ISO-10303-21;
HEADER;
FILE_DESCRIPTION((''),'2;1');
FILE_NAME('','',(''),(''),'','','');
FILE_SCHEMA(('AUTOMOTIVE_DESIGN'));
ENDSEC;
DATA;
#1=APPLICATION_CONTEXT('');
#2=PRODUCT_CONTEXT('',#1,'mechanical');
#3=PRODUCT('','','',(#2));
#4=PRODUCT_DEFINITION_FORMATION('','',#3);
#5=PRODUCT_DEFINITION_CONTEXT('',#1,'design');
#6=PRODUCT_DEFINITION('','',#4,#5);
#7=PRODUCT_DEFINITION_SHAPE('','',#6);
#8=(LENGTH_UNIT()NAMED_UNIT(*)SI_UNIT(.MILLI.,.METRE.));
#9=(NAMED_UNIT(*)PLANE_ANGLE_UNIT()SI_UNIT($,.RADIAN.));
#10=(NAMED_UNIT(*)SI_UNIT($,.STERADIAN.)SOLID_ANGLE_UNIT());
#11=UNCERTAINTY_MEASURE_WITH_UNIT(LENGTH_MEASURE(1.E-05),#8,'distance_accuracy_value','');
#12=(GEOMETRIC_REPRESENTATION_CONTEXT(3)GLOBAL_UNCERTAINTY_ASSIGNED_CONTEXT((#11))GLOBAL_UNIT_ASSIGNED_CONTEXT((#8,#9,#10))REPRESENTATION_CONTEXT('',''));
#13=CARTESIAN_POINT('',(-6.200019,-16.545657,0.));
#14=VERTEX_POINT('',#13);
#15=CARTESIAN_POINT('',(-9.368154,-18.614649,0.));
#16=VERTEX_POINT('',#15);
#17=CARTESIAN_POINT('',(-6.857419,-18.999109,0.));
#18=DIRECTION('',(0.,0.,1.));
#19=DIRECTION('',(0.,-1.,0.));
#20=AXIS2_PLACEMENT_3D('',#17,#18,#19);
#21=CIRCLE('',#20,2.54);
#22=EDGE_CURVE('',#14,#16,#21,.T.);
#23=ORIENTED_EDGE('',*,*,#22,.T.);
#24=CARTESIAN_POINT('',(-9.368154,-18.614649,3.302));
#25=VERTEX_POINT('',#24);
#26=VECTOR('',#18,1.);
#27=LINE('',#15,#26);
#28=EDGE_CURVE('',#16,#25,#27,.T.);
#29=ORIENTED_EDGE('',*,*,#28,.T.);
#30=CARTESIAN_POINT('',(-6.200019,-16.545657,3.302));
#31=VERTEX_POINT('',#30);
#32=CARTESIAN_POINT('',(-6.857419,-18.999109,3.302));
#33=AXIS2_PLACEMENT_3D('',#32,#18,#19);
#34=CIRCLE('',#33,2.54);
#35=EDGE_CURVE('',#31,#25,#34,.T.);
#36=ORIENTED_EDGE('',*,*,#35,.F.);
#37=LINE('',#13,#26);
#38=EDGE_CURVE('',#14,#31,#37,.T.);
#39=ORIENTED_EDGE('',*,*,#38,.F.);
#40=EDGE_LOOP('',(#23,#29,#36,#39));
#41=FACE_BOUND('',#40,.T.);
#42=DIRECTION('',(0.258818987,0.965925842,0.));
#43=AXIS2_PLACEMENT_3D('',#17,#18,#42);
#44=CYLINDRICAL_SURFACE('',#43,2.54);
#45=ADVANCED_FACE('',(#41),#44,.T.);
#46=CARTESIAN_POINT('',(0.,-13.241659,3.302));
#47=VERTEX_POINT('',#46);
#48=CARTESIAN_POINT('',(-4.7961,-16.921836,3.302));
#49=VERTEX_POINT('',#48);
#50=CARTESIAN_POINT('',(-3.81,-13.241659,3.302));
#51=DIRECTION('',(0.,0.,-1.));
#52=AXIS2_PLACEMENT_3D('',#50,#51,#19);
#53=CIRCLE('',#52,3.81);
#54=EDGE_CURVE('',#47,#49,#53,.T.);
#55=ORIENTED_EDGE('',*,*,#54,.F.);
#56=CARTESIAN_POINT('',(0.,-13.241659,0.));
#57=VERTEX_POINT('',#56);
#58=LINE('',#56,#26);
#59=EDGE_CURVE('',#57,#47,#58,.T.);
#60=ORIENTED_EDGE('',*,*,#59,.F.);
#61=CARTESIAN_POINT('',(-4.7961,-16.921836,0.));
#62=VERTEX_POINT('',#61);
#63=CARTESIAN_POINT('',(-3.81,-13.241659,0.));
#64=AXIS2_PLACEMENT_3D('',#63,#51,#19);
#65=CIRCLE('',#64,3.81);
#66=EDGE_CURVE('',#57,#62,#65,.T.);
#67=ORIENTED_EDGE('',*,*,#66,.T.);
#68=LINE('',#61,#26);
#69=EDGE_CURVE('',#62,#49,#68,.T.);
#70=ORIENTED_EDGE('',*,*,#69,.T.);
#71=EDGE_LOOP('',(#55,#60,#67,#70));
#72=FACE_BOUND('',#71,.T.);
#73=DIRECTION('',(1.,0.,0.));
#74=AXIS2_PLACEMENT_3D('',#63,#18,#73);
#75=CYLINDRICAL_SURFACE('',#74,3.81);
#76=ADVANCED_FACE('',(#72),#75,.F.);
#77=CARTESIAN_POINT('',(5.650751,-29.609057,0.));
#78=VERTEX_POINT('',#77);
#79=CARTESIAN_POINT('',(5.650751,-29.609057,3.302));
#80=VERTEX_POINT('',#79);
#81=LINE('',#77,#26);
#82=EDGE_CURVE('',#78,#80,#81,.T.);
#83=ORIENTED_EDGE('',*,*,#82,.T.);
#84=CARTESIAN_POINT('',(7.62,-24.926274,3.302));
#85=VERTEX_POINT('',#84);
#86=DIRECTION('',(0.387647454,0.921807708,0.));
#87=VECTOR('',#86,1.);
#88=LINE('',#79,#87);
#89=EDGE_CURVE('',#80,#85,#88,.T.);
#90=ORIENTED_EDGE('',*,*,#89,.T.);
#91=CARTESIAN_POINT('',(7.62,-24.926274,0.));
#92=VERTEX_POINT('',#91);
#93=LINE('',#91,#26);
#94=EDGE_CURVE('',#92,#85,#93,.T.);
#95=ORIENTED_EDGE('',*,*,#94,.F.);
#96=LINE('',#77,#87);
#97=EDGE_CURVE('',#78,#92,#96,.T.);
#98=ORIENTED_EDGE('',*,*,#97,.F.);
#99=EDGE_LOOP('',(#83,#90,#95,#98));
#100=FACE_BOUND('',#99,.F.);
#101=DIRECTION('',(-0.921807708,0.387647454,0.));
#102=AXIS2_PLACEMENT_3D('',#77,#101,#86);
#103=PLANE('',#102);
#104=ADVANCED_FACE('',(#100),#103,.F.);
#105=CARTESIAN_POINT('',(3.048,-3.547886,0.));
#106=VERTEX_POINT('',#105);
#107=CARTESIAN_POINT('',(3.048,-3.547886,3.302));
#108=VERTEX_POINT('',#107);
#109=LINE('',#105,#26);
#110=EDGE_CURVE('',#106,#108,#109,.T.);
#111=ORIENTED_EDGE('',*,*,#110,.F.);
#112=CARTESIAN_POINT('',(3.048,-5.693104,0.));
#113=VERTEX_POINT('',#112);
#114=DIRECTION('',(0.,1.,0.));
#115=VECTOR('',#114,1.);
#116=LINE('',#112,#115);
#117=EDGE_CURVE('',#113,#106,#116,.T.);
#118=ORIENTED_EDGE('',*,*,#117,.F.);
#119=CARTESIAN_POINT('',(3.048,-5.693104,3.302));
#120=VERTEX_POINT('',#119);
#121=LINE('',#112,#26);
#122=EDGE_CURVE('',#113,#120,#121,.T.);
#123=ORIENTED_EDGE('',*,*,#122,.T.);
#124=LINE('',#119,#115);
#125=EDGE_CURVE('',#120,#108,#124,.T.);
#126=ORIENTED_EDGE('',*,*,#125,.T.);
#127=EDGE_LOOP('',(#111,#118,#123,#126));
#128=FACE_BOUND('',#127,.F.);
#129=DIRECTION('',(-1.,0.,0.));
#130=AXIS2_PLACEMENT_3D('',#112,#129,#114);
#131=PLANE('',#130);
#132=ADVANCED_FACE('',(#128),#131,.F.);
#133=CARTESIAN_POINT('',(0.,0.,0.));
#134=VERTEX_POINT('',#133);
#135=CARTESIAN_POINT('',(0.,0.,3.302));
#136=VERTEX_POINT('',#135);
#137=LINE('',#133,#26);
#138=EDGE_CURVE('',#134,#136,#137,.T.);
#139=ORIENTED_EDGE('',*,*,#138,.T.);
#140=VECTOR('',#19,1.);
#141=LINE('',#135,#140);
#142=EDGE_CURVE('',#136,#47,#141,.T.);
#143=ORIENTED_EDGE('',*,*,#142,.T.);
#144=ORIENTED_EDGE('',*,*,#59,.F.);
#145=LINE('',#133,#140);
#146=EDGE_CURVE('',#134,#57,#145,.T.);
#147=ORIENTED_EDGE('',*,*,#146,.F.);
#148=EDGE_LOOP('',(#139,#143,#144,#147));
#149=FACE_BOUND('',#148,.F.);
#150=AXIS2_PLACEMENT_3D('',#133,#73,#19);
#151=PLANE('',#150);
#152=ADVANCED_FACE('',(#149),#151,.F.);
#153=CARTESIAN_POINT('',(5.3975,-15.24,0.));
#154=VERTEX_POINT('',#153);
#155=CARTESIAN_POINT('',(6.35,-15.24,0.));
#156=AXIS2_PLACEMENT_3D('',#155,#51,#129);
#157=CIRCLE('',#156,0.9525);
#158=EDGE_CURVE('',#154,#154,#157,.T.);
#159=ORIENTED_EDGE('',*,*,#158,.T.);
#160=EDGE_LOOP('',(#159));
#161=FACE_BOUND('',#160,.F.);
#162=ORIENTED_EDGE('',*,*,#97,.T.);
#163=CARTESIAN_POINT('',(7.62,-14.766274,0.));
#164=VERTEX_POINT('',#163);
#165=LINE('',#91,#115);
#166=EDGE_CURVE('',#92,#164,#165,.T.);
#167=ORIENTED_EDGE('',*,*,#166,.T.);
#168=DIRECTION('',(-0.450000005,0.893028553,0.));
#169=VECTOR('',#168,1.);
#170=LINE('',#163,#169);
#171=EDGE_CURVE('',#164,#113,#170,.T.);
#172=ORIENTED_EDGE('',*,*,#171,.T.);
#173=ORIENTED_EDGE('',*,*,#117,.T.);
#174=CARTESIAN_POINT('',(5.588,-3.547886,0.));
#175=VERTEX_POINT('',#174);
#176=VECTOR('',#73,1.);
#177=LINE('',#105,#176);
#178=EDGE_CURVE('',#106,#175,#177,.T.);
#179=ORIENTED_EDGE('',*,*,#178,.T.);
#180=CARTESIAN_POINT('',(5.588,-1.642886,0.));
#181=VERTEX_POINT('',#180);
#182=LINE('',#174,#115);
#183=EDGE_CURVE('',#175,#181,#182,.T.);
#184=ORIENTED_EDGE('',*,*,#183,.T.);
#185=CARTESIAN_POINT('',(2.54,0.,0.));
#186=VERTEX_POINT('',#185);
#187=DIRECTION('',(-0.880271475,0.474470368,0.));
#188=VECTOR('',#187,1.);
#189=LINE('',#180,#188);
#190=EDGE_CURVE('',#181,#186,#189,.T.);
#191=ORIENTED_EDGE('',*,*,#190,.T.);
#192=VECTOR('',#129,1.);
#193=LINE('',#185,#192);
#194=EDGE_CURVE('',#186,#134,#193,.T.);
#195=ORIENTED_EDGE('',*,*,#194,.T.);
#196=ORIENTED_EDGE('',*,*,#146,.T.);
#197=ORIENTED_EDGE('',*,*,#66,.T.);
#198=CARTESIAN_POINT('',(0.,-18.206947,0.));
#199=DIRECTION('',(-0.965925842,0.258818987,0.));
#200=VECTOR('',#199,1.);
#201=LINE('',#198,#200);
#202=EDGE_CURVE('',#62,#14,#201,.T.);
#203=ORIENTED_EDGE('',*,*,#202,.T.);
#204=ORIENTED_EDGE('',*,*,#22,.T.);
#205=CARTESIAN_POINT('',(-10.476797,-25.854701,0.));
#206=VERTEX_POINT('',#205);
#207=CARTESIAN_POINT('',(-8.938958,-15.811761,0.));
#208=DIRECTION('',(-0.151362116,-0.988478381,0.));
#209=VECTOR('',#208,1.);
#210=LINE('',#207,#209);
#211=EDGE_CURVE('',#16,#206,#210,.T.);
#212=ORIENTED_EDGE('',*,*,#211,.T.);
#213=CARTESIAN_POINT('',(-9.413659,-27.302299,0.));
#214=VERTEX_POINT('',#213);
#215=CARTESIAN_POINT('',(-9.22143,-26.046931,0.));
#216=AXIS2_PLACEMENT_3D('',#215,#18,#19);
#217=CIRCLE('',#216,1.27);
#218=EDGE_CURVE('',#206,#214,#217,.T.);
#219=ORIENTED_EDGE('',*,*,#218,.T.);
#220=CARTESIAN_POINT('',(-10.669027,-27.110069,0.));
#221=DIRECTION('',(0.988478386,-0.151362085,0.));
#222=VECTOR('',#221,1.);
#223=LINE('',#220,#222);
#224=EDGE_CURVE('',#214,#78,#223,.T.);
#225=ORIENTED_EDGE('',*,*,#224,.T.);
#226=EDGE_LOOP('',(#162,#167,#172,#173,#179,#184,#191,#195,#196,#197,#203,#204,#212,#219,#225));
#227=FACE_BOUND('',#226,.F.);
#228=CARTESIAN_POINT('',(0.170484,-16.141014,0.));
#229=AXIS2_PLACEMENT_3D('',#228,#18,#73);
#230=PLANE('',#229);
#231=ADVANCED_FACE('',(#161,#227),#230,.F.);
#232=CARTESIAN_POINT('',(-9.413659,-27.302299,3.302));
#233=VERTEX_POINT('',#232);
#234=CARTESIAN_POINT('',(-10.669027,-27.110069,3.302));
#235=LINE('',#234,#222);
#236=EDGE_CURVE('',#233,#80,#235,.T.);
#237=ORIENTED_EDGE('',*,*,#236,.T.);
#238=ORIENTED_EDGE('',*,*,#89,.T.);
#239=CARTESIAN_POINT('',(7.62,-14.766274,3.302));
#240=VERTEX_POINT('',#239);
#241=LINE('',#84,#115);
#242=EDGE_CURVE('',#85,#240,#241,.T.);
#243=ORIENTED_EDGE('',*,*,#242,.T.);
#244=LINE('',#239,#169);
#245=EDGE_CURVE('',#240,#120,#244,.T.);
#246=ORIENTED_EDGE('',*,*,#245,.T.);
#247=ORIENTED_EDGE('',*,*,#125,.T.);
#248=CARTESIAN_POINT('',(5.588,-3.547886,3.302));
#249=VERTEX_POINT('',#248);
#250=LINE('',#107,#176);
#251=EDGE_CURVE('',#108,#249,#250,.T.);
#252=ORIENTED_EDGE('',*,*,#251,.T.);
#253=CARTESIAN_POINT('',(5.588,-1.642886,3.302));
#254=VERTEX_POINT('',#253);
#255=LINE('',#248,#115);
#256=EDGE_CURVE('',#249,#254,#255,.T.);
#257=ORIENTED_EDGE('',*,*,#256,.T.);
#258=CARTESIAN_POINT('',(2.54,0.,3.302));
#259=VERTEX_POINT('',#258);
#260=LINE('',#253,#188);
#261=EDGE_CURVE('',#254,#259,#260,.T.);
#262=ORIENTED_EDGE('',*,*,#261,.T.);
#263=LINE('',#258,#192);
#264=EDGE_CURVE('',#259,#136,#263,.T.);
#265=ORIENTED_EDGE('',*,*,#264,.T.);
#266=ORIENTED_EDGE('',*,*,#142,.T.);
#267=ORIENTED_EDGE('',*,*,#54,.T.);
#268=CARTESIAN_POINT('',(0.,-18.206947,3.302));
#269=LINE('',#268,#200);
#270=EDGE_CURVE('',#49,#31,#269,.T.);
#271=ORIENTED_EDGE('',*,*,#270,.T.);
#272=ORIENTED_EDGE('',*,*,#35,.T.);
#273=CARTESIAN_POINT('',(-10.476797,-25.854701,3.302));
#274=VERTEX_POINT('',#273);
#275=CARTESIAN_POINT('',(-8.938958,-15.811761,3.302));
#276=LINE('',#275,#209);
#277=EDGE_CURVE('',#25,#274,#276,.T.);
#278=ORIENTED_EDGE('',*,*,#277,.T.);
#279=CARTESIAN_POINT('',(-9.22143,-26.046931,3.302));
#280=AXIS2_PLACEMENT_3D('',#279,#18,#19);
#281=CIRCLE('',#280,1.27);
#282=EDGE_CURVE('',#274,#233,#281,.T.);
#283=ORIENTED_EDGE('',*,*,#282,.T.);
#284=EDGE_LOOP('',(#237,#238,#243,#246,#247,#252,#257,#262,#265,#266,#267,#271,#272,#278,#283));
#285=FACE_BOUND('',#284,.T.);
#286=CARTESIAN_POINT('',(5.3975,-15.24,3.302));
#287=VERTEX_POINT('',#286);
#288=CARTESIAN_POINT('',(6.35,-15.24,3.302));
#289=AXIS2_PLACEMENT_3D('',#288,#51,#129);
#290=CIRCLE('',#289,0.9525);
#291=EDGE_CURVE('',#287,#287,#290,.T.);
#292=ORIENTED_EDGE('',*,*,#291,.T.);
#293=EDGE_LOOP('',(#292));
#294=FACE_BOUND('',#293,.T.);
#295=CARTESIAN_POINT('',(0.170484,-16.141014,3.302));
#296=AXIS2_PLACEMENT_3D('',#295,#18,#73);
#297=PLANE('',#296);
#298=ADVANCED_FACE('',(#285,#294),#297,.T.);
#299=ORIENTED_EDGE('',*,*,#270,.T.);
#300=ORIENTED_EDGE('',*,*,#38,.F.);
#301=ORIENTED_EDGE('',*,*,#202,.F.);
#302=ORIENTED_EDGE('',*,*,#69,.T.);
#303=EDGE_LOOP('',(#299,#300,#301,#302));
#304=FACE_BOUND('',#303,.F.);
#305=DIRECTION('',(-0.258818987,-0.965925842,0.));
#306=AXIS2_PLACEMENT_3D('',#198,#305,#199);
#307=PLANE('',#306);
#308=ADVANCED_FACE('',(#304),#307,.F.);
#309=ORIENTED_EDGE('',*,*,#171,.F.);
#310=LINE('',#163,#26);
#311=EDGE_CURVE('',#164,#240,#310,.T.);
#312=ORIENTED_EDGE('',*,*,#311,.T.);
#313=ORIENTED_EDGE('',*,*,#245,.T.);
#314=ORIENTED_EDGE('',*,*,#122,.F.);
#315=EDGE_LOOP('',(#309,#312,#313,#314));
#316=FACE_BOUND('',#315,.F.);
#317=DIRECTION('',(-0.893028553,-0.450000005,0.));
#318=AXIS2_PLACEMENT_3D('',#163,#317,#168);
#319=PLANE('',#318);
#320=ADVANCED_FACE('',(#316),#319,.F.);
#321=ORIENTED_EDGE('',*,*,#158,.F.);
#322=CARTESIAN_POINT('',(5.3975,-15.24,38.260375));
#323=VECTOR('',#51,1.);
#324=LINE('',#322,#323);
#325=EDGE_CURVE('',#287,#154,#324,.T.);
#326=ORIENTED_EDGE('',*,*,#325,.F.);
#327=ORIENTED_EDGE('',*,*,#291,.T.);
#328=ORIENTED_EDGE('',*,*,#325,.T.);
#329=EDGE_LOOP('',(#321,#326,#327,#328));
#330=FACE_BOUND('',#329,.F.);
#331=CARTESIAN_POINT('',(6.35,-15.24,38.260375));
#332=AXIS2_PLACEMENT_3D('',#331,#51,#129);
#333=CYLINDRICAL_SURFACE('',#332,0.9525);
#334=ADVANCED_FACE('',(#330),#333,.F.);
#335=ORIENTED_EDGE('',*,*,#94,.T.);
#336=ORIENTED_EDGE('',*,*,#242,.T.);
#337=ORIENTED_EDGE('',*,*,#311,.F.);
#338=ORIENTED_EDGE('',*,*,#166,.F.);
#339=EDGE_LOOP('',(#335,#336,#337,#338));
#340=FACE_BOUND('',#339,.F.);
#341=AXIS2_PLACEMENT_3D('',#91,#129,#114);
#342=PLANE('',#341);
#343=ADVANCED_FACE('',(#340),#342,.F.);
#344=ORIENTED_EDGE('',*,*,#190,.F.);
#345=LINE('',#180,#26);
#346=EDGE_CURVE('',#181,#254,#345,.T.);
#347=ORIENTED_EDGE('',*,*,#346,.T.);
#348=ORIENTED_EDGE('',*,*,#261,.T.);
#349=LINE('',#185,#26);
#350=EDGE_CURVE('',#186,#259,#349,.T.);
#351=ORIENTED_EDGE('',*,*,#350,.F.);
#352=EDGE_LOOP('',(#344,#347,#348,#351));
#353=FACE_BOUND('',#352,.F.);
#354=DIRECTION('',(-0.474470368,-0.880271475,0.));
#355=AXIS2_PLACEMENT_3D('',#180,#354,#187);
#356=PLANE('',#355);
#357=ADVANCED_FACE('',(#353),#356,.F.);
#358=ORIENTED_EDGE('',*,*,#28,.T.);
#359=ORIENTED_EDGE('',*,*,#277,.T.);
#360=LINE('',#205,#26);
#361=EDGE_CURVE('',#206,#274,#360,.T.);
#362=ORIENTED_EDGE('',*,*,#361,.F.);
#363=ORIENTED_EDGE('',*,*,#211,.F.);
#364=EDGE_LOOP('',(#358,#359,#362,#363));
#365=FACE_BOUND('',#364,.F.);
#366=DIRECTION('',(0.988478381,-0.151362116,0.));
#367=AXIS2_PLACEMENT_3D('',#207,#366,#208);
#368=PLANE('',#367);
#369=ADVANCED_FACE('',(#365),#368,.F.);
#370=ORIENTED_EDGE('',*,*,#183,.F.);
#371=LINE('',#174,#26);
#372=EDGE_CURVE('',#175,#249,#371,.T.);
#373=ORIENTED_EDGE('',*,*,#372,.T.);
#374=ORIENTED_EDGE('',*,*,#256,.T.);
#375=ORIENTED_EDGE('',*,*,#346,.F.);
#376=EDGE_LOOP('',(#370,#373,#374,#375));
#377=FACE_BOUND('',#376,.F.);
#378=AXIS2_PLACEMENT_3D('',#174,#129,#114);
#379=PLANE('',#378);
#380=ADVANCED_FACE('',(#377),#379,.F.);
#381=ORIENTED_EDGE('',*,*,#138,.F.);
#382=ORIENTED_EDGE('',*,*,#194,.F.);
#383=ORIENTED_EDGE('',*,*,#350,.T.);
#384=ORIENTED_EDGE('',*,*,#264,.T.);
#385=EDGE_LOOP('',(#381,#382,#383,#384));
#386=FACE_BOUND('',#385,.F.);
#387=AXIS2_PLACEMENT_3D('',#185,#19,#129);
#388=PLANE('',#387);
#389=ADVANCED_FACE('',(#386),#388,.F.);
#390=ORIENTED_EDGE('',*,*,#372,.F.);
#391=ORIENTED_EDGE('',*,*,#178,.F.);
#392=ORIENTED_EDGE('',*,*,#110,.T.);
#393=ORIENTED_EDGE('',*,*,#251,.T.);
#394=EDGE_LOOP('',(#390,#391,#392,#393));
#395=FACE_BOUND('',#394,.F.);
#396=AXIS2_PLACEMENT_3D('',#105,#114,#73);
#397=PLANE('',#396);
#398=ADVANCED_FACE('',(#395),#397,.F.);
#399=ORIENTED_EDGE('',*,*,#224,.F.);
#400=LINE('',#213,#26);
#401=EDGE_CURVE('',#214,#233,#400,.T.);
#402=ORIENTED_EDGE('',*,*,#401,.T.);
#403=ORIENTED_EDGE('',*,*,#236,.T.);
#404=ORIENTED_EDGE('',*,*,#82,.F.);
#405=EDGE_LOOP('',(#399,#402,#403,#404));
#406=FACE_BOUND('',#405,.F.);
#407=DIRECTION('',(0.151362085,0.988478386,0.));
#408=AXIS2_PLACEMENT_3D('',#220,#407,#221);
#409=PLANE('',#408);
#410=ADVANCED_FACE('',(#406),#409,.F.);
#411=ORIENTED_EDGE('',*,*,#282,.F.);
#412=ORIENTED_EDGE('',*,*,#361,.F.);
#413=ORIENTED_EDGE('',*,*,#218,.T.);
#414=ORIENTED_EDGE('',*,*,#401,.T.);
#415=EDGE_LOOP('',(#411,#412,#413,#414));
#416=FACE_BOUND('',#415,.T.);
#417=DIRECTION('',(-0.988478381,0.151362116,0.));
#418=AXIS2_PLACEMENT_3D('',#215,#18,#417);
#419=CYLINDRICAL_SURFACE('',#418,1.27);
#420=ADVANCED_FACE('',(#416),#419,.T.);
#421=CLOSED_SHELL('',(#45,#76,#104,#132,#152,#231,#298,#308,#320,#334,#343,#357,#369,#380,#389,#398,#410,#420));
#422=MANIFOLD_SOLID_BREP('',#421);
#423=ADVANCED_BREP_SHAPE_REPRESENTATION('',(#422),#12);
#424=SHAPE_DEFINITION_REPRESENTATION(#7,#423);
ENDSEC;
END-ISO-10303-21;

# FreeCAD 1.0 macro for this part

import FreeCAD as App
import Part
import Sketcher
Q = App.Units.Quantity


def edges_at(feature, points):
    """Names of the edges that pass closest to the given points."""
    edges = feature.Shape.Edges
    near = lambda p: min(range(len(edges)), key=lambda i: edges[i].distToShape(Part.Vertex(*p))[0])
    return sorted({f"Edge{near(p) + 1}" for p in points})


def add_polygon(sketch, points):
    """Adds a closed chain of lines whose ends are joined by coincident constraints."""
    first, n = sketch.GeometryCount, len(points)
    for a, b in zip(points, points[1:] + points[:1]):
        sketch.addGeometry(Part.LineSegment(App.Vector(*a, 0), App.Vector(*b, 0)), False)
    for i in range(n):
        sketch.addConstraint(Sketcher.Constraint("Coincident", first + i, 2, first + (i + 1) % n, 1))

doc = App.newDocument("Part")
body = doc.addObject("PartDesign::Body", "Body")

# Sketch on XY plane
sketch1 = body.newObject("Sketcher::SketchObject", "Sketch")
sketch1.AttachmentSupport = (doc.getObject("XY_Plane"), [""])
sketch1.MapMode = "FlatFace"
add_polygon(sketch1, [(2.5, 0), (0, 0), (0, -18.2), (-8.9, -15.8), (-10.7, -27.1), (5.7, -29.6), (7.6, -24.9), (7.6, -14.8), (3, -5.7), (3, -3.5), (5.6, -3.5), (5.6, -1.6)])  # lines 0-11
sketch1.addConstraint([
    Sketcher.Constraint("Horizontal", 0),
    Sketcher.Constraint("Vertical", 1),
    Sketcher.Constraint("Vertical", 6),
    Sketcher.Constraint("Vertical", 8),
    Sketcher.Constraint("Horizontal", 9),
    Sketcher.Constraint("Vertical", 10),
    Sketcher.Constraint("Coincident", 0, 2, -1, 1),
    Sketcher.Constraint("Perpendicular", 3, 4),
    Sketcher.Constraint("Equal", 0, 9),
    Sketcher.Constraint("DistanceX", 0, 2, 0, 1, Q("0.1 in")),
    Sketcher.Constraint("DistanceY", 6, 1, 6, 2, Q("0.4 in")),
    Sketcher.Constraint("Angle", 2, Q("165.000003 deg")),
    Sketcher.Constraint("Distance", 5, Q("0.2 in")),
    Sketcher.Constraint("Distance", 7, Q("0.4 in")),
    Sketcher.Constraint("DistanceX", -1, 1, 5, 2, Q("0.3 in")),
    Sketcher.Constraint("Distance", 3, Q("0.45 in")),
    Sketcher.Constraint("Distance", 4, Q("0.65 in")),
    Sketcher.Constraint("DistanceY", 10, 1, 10, 2, Q("0.075 in")),
    Sketcher.Constraint("DistanceX", -1, 1, 7, 2, Q("0.12 in")),
    Sketcher.Constraint("Distance", 2, 9.25429),
    Sketcher.Constraint("Distance", 11, 3.462568),
    Sketcher.Constraint("DistanceY", 1, 2, 1, 1, 18.206947),
    Sketcher.Constraint("DistanceY", 8, 1, 8, 2, 2.145218),
])
pad1 = body.newObject("PartDesign::Pad", "Pad")
pad1.Profile = sketch1
pad1.Length = Q("0.13 in")
doc.recompute()

fillet = body.newObject("PartDesign::Fillet", "Fillet")
fillet.Base = (pad1, edges_at(pad1, [(0, -18.207, 1.651)]))
fillet.Radius = Q("0.15 in")
doc.recompute()

fillet2 = body.newObject("PartDesign::Fillet", "Fillet001")
fillet2.Base = (fillet, edges_at(fillet, [(-8.939, -15.812, 1.651)]))
fillet2.Radius = Q("0.1 in")

# Sketch on XY plane
sketch2 = body.newObject("Sketcher::SketchObject", "Sketch001")
sketch2.AttachmentSupport = (doc.getObject("XY_Plane"), [""])
sketch2.MapMode = "FlatFace"
sketch2.AttachmentOffset = App.Placement(App.Vector(0, 0, 0.13 * 25.4), App.Rotation())
sketch2.addGeometry(Part.Circle(App.Vector(6.3, -15.2, 0), App.Vector(0, 0, 1), 1), False)
sketch2.addConstraint([
    Sketcher.Constraint("Diameter", 0, Q("0.075 in")),
    Sketcher.Constraint("DistanceY", 0, 3, -1, 1, Q("0.6 in")),
    Sketcher.Constraint("DistanceX", -1, 1, 0, 3, Q("0.25 in")),
])
doc.recompute()
hole = body.newObject("PartDesign::Hole", "Hole")
hole.Profile = sketch2
hole.ThreadType = "None"
hole.Diameter = Q("0.075 in")
hole.DepthType = "ThroughAll"
doc.recompute()

fillet3 = body.newObject("PartDesign::Fillet", "Fillet002")
fillet3.Base = (hole, edges_at(hole, [(-10.669, -27.11, 1.651)]))
fillet3.Radius = Q("0.05 in")

doc.recompute()
